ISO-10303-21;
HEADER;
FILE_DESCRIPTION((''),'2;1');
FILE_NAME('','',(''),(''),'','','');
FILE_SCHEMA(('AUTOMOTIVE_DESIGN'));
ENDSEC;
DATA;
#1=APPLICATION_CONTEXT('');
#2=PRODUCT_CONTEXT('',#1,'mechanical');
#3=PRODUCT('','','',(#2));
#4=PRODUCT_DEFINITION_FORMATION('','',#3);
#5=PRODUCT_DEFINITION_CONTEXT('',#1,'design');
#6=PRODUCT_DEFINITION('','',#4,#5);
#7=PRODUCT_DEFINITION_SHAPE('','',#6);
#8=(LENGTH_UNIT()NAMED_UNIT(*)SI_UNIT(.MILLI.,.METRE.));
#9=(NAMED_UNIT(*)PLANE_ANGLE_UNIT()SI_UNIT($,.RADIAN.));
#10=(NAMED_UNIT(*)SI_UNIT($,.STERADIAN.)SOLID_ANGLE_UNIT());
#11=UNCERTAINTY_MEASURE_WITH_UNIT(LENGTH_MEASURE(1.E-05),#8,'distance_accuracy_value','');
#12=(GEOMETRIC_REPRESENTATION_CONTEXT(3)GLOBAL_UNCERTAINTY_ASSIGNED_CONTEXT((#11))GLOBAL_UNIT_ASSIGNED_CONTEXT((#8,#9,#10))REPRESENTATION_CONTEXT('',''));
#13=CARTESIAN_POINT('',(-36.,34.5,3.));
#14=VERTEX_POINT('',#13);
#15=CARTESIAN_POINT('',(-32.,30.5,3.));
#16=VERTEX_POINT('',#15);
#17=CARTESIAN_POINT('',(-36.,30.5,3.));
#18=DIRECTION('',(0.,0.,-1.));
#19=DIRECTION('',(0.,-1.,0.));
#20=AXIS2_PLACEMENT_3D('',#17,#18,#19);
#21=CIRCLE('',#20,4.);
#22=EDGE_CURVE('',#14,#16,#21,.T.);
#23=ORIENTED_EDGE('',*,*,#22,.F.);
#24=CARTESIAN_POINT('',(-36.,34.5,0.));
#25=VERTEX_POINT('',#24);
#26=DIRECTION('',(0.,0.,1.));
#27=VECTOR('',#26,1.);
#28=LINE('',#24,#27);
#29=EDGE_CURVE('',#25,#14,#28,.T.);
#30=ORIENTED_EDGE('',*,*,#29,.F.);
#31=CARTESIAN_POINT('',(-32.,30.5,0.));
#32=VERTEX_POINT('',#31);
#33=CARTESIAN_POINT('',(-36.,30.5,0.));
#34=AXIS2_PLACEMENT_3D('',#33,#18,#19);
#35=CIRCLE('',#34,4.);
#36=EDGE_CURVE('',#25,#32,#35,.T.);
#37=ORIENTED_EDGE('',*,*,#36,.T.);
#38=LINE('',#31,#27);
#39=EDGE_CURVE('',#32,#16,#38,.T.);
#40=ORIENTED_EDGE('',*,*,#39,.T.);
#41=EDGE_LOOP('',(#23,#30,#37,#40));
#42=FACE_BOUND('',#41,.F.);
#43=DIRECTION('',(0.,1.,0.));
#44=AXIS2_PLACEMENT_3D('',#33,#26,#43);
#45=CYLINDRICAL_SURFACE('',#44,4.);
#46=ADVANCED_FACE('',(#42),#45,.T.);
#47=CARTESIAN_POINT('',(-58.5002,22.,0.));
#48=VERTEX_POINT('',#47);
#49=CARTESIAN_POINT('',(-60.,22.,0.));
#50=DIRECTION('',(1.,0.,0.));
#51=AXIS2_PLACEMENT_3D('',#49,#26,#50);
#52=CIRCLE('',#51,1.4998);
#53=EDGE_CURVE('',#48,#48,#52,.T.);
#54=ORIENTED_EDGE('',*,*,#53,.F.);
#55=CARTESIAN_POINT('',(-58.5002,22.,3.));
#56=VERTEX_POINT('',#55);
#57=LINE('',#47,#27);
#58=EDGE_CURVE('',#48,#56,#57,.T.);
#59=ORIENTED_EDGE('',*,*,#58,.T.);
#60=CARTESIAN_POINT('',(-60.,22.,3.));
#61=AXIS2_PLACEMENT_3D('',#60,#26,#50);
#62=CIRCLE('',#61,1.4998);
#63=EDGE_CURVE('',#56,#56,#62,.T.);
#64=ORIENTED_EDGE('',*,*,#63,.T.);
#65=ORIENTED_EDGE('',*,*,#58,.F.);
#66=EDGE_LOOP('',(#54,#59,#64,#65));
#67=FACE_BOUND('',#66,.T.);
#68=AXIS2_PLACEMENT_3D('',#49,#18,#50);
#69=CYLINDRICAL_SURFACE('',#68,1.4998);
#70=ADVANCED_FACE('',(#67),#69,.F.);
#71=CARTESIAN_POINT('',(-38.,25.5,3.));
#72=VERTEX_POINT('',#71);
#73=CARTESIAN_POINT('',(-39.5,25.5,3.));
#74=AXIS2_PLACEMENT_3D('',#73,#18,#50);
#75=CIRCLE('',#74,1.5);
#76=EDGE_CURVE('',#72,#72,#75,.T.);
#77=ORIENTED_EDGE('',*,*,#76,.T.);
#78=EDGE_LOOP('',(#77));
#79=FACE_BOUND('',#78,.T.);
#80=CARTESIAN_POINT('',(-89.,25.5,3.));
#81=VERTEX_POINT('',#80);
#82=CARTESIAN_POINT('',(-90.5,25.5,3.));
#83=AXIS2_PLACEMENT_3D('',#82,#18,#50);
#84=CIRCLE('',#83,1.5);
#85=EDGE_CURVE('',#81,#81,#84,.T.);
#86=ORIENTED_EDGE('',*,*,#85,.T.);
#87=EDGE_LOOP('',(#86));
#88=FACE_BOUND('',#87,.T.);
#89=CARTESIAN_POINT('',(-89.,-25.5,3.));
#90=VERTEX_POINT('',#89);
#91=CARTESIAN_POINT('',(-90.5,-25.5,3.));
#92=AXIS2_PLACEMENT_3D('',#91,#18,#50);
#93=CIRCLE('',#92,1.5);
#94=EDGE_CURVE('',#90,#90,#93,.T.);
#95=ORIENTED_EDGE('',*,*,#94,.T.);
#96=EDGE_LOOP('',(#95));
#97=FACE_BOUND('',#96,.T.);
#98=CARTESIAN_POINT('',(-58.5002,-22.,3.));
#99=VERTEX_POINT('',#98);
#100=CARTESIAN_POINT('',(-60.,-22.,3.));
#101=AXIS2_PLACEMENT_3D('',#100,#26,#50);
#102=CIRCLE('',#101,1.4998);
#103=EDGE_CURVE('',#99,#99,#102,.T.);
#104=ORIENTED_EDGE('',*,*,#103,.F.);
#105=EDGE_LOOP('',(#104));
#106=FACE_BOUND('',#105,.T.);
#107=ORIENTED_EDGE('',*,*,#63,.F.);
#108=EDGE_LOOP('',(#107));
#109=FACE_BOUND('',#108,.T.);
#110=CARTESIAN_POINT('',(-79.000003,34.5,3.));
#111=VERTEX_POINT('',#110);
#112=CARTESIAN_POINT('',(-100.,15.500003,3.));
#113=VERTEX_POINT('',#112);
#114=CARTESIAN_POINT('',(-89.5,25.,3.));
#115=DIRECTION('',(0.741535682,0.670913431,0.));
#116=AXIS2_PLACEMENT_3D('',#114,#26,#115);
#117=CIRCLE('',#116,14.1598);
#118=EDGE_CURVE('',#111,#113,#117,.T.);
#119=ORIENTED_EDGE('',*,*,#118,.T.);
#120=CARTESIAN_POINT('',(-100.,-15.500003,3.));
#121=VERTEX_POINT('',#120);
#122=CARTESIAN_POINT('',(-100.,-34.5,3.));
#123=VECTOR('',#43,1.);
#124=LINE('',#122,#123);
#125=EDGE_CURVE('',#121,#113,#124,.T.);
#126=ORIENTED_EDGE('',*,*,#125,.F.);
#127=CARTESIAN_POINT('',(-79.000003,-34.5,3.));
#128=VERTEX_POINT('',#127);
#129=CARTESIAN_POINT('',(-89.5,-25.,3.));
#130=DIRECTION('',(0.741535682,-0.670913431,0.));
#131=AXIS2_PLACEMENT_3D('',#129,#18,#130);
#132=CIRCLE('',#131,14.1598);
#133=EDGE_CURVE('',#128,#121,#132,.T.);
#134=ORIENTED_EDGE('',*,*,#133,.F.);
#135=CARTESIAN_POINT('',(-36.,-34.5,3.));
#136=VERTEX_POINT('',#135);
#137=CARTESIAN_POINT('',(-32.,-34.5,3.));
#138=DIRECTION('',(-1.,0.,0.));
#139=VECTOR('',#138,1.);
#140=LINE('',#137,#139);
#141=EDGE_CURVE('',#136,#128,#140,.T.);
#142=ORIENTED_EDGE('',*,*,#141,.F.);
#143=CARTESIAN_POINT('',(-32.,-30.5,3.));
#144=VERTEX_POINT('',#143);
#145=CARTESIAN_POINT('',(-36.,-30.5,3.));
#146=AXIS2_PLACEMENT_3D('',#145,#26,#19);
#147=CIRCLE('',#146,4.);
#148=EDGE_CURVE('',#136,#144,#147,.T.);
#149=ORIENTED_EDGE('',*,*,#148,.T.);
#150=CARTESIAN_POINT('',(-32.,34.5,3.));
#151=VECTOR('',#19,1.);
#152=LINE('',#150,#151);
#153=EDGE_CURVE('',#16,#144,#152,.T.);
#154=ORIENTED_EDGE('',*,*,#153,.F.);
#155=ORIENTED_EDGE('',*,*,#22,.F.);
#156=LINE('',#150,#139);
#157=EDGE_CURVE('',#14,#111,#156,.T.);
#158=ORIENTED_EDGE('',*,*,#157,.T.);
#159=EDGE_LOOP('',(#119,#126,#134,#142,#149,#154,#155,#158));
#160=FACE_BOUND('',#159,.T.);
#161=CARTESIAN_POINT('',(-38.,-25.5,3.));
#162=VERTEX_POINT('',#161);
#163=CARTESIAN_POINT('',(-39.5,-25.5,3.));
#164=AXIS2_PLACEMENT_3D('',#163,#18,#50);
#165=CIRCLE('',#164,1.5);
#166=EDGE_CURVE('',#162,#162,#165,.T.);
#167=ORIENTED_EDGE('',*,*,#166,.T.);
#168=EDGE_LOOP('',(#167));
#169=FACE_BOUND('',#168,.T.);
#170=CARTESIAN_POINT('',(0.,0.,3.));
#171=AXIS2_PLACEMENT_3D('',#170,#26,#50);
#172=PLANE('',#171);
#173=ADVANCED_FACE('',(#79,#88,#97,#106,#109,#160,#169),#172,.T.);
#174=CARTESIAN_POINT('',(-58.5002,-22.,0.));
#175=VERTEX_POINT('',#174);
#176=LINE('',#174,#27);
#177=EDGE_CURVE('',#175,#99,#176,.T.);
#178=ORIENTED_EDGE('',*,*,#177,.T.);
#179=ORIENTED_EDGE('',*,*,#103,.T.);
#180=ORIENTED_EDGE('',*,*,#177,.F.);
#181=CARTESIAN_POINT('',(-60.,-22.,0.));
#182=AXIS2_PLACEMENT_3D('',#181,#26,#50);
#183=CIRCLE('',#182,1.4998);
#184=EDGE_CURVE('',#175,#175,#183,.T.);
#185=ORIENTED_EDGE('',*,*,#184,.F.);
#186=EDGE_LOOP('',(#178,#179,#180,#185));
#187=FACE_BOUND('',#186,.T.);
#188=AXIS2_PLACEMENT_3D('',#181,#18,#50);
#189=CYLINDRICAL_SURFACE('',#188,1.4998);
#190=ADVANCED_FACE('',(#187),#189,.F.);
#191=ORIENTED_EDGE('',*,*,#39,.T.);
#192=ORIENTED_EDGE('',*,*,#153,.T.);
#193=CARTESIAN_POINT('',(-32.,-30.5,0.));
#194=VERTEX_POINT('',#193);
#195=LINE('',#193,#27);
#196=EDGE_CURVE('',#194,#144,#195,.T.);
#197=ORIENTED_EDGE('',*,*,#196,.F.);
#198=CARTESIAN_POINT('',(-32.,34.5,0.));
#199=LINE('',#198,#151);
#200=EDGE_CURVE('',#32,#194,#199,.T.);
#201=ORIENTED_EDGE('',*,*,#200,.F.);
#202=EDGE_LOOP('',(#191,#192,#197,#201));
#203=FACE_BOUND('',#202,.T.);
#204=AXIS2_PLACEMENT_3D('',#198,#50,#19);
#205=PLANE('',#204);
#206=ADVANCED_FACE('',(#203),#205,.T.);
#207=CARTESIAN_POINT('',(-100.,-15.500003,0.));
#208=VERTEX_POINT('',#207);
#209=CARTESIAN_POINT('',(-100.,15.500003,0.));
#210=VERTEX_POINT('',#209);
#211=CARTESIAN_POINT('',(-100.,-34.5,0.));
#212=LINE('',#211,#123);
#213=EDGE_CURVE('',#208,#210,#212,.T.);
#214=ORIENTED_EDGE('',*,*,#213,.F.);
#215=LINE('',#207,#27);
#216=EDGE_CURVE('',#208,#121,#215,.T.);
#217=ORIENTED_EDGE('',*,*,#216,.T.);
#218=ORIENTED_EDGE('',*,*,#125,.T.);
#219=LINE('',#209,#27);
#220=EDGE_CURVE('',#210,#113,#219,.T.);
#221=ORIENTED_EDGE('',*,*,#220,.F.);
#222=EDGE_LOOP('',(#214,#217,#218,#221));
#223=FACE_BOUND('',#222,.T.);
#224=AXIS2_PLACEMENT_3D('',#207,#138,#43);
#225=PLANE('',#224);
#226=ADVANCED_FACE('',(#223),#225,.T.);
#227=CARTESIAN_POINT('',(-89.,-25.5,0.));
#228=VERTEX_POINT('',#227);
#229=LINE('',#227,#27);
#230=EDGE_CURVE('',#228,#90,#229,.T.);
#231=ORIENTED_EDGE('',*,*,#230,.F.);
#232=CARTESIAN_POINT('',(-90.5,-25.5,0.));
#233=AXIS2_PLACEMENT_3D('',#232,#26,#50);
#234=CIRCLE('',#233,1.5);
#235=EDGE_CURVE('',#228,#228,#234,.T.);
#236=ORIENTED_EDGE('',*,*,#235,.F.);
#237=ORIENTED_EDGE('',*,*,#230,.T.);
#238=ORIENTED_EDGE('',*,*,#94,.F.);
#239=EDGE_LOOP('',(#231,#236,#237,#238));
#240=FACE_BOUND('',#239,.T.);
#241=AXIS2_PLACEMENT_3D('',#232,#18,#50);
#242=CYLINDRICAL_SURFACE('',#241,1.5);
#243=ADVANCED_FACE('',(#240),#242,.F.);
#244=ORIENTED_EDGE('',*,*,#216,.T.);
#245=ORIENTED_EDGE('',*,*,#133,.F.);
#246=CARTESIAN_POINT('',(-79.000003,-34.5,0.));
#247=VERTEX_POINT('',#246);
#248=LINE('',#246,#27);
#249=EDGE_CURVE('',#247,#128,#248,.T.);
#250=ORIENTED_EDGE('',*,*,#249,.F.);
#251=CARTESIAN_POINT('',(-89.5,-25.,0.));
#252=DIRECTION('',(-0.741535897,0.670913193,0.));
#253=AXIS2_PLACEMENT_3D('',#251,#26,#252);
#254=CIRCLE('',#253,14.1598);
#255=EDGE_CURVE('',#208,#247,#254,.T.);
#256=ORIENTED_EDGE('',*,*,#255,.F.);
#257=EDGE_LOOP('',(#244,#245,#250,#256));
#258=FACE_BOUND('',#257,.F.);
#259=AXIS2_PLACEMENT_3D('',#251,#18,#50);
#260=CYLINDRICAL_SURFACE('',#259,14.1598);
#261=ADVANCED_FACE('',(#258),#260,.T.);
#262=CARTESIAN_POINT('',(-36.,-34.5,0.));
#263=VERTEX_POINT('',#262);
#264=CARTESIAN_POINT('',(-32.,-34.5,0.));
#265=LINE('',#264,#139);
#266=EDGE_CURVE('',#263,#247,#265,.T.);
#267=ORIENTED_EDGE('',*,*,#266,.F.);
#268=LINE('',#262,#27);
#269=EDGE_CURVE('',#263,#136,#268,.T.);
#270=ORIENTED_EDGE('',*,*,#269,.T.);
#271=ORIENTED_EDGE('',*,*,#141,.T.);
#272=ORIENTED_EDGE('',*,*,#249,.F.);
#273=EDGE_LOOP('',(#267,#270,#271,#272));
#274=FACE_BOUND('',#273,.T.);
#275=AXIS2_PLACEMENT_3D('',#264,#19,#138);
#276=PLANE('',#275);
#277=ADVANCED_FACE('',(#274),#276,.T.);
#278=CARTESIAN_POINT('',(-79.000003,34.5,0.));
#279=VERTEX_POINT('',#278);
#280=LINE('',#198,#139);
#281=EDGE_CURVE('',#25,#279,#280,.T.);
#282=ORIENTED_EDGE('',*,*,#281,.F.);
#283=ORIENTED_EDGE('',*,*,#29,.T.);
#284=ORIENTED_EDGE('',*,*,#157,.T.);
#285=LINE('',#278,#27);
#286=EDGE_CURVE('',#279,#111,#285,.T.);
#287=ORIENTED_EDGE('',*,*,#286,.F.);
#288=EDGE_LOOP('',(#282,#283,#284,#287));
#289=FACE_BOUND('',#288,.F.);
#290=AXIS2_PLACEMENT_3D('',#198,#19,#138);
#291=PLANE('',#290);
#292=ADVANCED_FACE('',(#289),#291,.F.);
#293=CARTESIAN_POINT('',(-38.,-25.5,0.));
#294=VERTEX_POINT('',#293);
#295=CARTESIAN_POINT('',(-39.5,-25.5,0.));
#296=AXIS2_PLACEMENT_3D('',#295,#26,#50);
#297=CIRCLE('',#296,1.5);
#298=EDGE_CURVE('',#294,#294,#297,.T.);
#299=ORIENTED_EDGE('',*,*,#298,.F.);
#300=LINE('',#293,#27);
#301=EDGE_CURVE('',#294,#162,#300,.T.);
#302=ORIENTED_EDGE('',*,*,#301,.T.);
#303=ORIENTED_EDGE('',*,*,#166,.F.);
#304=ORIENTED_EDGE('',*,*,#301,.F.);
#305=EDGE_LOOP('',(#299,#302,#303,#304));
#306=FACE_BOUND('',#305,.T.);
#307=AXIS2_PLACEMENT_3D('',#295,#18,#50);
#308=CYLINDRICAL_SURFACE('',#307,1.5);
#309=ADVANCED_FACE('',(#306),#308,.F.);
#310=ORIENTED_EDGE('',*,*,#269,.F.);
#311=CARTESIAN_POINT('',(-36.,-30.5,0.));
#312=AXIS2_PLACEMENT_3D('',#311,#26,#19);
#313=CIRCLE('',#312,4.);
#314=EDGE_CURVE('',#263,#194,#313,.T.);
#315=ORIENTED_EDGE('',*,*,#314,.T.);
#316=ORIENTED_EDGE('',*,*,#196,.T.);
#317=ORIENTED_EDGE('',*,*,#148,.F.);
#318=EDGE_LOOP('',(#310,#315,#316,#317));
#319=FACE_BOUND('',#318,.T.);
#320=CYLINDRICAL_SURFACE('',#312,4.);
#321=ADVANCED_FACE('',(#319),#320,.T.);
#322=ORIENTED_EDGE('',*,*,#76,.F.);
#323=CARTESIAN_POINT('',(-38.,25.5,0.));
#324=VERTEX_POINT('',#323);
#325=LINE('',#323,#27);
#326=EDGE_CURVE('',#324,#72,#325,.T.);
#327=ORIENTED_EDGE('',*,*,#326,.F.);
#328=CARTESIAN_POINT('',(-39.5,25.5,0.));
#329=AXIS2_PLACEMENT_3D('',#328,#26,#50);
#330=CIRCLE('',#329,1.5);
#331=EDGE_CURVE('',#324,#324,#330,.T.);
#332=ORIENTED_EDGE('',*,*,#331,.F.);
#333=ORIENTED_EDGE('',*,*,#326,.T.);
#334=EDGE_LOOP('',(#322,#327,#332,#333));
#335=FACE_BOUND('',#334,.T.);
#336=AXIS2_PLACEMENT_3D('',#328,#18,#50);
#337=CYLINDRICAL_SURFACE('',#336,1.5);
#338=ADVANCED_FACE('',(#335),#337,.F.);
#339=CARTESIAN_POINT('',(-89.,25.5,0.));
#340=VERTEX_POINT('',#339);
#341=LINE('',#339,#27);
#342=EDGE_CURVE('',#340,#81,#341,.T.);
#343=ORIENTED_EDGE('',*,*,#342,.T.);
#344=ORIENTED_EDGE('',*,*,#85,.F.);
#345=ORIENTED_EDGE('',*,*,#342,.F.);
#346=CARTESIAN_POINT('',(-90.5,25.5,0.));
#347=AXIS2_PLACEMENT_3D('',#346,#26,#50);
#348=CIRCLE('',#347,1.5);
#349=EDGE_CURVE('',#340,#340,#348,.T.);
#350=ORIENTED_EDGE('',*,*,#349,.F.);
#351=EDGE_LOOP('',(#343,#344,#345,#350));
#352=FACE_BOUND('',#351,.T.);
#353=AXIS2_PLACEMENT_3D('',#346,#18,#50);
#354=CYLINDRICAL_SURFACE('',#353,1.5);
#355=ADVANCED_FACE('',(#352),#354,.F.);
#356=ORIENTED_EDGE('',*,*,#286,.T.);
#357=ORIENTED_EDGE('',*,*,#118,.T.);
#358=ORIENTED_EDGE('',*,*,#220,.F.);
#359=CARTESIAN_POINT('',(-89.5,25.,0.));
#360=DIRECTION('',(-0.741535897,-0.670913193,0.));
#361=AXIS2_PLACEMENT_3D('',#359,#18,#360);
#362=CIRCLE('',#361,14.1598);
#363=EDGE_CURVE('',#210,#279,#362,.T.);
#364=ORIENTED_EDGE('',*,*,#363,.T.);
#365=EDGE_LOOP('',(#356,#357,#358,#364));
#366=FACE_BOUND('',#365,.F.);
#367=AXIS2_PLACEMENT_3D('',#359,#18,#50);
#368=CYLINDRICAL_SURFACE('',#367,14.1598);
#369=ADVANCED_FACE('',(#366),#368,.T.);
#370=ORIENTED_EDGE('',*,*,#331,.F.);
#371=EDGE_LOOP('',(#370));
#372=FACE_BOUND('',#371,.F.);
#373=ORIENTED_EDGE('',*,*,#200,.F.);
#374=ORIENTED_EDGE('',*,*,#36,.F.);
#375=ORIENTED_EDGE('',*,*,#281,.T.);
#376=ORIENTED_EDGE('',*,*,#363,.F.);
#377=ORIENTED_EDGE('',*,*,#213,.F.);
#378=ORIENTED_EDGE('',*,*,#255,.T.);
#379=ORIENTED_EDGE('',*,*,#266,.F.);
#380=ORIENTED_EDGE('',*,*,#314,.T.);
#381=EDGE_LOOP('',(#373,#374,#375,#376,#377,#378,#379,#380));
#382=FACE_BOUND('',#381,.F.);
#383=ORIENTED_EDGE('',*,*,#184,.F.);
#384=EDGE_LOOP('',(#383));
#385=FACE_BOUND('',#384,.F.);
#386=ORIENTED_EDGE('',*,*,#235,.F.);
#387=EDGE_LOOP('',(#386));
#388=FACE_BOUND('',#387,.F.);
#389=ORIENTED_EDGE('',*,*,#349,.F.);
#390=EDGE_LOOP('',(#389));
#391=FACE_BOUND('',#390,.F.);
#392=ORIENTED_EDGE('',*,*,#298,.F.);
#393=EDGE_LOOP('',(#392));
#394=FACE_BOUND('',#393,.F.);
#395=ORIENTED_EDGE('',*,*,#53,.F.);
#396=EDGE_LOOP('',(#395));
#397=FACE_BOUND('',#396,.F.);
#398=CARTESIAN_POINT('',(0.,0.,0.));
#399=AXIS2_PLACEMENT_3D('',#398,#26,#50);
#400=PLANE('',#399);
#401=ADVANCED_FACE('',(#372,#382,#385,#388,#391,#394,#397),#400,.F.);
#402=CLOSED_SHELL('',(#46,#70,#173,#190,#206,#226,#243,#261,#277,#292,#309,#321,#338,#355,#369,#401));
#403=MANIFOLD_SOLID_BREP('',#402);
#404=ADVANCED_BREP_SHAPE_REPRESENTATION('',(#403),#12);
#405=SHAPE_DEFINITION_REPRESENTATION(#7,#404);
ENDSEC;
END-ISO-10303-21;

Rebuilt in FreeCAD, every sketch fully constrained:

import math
import FreeCAD as App
import Part
import Sketcher
from FreeCAD import Vector


def edges_at(feature, points):
    """Names of the edges that pass closest to the given points."""
    edges = feature.Shape.Edges
    near = lambda p: min(range(len(edges)), key=lambda i: edges[i].distToShape(Part.Vertex(*p))[0])
    return sorted({f"Edge{near(p) + 1}" for p in points})

doc = App.newDocument("Part")
body = doc.addObject("PartDesign::Body", "Body")

# Sketch on XY plane
sketch1 = body.newObject("Sketcher::SketchObject", "Sketch")
sketch1.AttachmentSupport = (doc.getObject("XY_Plane"), [""])
sketch1.MapMode = "FlatFace"
sketch1.addGeometry([
    Part.ArcOfCircle(Part.Circle(Vector(-89.5, -25, 0), Vector(0, 0, 1), 14.2), math.radians(138), math.radians(318)),  # 0
    Part.LineSegment(Vector(-79, -34.5, 0), Vector(-32, -34.5, 0)),  # 1
    Part.LineSegment(Vector(-32, -34.5, 0), Vector(-32, 34.5, 0)),  # 2
    Part.LineSegment(Vector(-32, 34.5, 0), Vector(-79, 34.5, 0)),  # 3
    Part.ArcOfCircle(Part.Circle(Vector(-89.5, 25, 0), Vector(0, 0, 1), 14.2), math.radians(42), math.radians(222)),  # 4
    Part.LineSegment(Vector(-100, 15.5, 0), Vector(-100, -15.5, 0)),  # 5
    Part.Circle(Vector(-60, 22, 0), Vector(0, 0, 1), 1.5),  # 6
    Part.Circle(Vector(-60, -22, 0), Vector(0, 0, 1), 1.5),  # 7
], False)
sketch1.addConstraint([
    Sketcher.Constraint("Coincident", 0, 2, 1, 1),
    Sketcher.Constraint("Coincident", 1, 2, 2, 1),
    Sketcher.Constraint("Coincident", 2, 2, 3, 1),
    Sketcher.Constraint("Coincident", 3, 2, 4, 1),
    Sketcher.Constraint("Coincident", 4, 2, 5, 1),
    Sketcher.Constraint("Coincident", 5, 2, 0, 1),
    Sketcher.Constraint("Horizontal", 1),
    Sketcher.Constraint("Vertical", 2),
    Sketcher.Constraint("Horizontal", 3),
    Sketcher.Constraint("Vertical", 5),
    Sketcher.Constraint("Equal", 0, 4),
    Sketcher.Constraint("Equal", 6, 7),
    Sketcher.Constraint("Symmetric", 0, 3, 4, 3, -1),
    Sketcher.Constraint("Symmetric", 6, 3, 7, 3, -1),
    Sketcher.Constraint("Vertical", 0, 2, 3, 2),
    Sketcher.Constraint("DistanceX", 1, 1, 1, 2, 47.0),
    Sketcher.Constraint("DistanceY", 2, 1, 2, 2, 69.0),
    Sketcher.Constraint("DistanceY", 5, 2, 5, 1, 31.0),
    Sketcher.Constraint("DistanceY", 0, 3, -1, 1, 25.0),
    Sketcher.Constraint("DistanceX", 6, 3, -1, 1, 60.0),
    Sketcher.Constraint("DistanceY", -1, 1, 6, 3, 22.0),
    Sketcher.Constraint("DistanceX", 0, 2, -1, 1, 79.0),
    Sketcher.Constraint("DistanceX", 4, 2, -1, 1, 100.0),
    Sketcher.Constraint("Diameter", 6, 2.9996),
])
pad1 = body.newObject("PartDesign::Pad", "Pad")
pad1.Profile = sketch1
pad1.Length = 3
doc.recompute()

fillet = body.newObject("PartDesign::Fillet", "Fillet")
fillet.Base = (pad1, edges_at(pad1, [(-32, 34.5, 1.5), (-32, -34.5, 1.5)]))
fillet.Radius = 4

# Sketch on XY plane
sketch2 = body.newObject("Sketcher::SketchObject", "Sketch001")
sketch2.AttachmentSupport = (doc.getObject("XY_Plane"), [""])
sketch2.MapMode = "FlatFace"
sketch2.addGeometry([
    Part.Circle(Vector(-90.5, 25.5, 0), Vector(0, 0, 1), 1.5),
    Part.Circle(Vector(-90.5, -25.5, 0), Vector(0, 0, 1), 1.5),
    Part.Circle(Vector(-39.5, 25.5, 0), Vector(0, 0, 1), 1.5),
    Part.Circle(Vector(-39.5, -25.5, 0), Vector(0, 0, 1), 1.5),
], False)
sketch2.addConstraint([
    Sketcher.Constraint("Equal", 0, 1),
    Sketcher.Constraint("Equal", 1, 2),
    Sketcher.Constraint("Equal", 2, 3),
    Sketcher.Constraint("Symmetric", 0, 3, 1, 3, -1),
    Sketcher.Constraint("Symmetric", 2, 3, 3, 3, -1),
    Sketcher.Constraint("Horizontal", 0, 3, 2, 3),
    Sketcher.Constraint("Diameter", 0, 3.0),
    Sketcher.Constraint("DistanceY", 1, 3, 0, 3, 51.0),
    Sketcher.Constraint("DistanceX", 0, 3, 2, 3, 51.0),
    Sketcher.Constraint("DistanceX", 0, 3, -1, 1, 90.5),
])
pocket1 = body.newObject("PartDesign::Pocket", "Pocket")
pocket1.Profile = sketch2
pocket1.Length = 10
pocket1.Reversed = True

doc.recompute()
